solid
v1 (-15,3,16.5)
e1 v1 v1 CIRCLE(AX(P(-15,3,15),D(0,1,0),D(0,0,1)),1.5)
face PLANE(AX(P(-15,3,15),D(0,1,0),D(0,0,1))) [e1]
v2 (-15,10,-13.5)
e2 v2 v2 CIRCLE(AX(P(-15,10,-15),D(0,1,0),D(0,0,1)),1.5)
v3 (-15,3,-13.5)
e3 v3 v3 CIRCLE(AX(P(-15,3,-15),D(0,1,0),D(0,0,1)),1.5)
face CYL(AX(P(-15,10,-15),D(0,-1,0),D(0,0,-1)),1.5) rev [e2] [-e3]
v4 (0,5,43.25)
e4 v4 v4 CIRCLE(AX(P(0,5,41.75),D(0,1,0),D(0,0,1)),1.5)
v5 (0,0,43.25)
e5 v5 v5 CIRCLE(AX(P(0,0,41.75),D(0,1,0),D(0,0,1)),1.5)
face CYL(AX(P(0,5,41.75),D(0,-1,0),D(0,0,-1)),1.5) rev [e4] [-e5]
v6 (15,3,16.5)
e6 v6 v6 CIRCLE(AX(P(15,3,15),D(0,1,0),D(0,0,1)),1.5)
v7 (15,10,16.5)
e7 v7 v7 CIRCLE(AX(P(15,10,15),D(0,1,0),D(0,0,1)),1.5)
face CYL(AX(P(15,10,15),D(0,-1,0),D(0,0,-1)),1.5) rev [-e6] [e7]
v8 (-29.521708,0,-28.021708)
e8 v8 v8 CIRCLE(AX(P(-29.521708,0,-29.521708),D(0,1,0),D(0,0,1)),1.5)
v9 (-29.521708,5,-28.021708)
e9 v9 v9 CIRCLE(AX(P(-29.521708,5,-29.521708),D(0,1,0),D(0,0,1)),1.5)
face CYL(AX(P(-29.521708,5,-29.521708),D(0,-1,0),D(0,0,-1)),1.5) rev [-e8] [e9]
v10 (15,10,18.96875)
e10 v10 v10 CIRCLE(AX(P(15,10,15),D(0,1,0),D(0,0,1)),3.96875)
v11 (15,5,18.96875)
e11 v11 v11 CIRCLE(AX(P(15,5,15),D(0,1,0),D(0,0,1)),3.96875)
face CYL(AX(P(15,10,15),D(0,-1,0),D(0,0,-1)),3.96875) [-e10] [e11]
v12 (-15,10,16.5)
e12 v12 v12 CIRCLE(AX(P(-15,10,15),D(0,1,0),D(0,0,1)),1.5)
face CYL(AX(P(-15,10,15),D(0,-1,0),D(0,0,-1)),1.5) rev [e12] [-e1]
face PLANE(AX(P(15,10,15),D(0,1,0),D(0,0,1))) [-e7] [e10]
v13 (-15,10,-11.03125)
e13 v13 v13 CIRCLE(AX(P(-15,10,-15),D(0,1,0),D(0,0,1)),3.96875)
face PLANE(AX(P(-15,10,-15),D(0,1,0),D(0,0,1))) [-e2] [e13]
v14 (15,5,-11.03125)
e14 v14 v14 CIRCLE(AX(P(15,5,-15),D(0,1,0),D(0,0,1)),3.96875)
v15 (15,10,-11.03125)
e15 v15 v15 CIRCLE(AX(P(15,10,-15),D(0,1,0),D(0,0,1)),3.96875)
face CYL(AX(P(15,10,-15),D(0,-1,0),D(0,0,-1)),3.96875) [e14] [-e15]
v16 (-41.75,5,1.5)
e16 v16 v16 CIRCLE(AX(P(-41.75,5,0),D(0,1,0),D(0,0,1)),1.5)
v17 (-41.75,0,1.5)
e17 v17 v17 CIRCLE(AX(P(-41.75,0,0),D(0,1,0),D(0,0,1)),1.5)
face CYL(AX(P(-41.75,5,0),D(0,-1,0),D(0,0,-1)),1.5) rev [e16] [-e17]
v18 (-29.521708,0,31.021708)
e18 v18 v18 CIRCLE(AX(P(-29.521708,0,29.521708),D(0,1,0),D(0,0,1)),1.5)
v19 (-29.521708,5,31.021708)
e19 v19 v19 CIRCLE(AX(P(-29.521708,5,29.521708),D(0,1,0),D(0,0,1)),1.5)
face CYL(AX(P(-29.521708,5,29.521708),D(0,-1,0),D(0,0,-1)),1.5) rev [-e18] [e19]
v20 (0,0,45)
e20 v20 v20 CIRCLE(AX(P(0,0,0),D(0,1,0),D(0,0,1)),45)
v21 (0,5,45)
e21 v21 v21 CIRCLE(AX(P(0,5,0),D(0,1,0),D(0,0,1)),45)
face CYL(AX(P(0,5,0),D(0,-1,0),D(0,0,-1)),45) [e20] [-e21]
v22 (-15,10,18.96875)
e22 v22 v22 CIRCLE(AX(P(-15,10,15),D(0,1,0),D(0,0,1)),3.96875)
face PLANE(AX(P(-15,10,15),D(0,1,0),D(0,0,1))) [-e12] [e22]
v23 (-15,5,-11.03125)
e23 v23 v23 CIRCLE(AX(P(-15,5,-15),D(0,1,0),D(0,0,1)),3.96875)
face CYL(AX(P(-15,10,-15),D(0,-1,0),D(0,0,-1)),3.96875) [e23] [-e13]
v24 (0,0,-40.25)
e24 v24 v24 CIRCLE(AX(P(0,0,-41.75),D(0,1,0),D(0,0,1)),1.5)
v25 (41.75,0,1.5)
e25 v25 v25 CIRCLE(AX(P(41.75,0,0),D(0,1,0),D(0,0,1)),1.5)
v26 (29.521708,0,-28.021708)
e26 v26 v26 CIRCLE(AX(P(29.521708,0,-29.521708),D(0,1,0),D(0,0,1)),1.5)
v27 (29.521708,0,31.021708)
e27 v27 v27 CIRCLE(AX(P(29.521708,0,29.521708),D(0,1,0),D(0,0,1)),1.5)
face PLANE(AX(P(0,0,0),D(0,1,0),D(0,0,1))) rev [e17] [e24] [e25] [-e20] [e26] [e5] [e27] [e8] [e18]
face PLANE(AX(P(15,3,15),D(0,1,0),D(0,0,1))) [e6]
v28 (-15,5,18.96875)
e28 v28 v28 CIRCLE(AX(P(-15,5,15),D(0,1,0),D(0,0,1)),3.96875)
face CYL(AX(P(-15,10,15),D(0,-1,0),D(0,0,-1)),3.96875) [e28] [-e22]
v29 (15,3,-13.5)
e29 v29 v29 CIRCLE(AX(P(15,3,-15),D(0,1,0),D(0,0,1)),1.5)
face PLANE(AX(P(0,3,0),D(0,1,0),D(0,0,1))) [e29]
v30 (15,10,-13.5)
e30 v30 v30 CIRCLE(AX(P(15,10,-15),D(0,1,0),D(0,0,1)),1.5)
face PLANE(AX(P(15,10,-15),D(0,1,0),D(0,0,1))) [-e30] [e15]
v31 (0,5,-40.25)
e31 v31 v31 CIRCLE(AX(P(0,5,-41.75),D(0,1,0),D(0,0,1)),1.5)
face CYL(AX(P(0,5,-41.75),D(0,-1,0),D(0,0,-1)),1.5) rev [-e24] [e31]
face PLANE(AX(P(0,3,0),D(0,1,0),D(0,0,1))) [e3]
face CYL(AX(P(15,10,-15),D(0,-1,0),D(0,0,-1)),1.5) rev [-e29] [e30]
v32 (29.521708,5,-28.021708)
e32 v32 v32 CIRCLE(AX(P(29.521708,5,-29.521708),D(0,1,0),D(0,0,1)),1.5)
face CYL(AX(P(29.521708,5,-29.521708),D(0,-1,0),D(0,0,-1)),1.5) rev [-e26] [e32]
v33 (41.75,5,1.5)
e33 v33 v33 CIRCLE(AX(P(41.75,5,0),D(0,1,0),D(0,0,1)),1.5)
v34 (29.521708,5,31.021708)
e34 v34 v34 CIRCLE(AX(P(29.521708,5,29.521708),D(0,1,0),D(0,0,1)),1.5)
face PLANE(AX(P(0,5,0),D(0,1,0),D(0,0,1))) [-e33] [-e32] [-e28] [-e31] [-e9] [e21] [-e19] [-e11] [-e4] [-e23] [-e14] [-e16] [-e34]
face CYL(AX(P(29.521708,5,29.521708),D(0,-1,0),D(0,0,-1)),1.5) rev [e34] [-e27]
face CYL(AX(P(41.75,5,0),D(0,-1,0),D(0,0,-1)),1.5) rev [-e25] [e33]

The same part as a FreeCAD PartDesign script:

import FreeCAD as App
import Part
import Sketcher

V = App.Vector
Q = App.Units.Quantity

doc = App.newDocument("Part")
params = doc.addObject("Spreadsheet::Sheet", "Params")
for row, (alias, value) in enumerate([
    ("sketch1_diameter", "90 mm"),
    ("sketch1_diameter2", "3 mm"),
    ("pad1_length", "5 mm"),
    ("pad2_length", "5 mm"),
    ("sketch3_diameter", "3 mm"),
    ("pocket1_length", "7 mm"),
    ("sketch4_height", "5 mm"),
    ("pad3_length", "4 mm"),
    ("sketch6_diameter", "3 mm"),
    ("pad4_length", "5 mm"),
    ("sketch7_diameter", "3 mm"),
    ("pocket3_length", "2 mm"),
], start=1):
    params.set(f"A{row}", alias)
    params.set(f"B{row}", "=" + value)
    params.setAlias(f"B{row}", alias)

body = doc.addObject("PartDesign::Body", "Body")

# Sketch on XZ plane
sketch1 = body.newObject("Sketcher::SketchObject", "Sketch")
sketch1.AttachmentSupport = (doc.getObject("XZ_Plane"), [""])
sketch1.MapMode = "FlatFace"
sketch1.addGeometry(Part.Circle(V(0, 0, 0), V(0, 0, 1), 45), False)
sketch1.addGeometry(Part.Circle(V(-29.5, -29.5, 0), V(0, 0, 1), 1.5), False)
sketch1.addGeometry(Part.Circle(V(0, -41.8, 0), V(0, 0, 1), 1.5), False)
sketch1.addGeometry(Part.Circle(V(-41.8, 0, 0), V(0, 0, 1), 1.5), False)
sketch1.addGeometry(Part.Circle(V(-29.5, 29.5, 0), V(0, 0, 1), 1.5), False)
sketch1.addGeometry(Part.Circle(V(29.5, -29.5, 0), V(0, 0, 1), 1.5), False)
sketch1.addGeometry(Part.Circle(V(41.8, 0, 0), V(0, 0, 1), 1.5), False)
sketch1.addGeometry(Part.Circle(V(0, 41.8, 0), V(0, 0, 1), 1.5), False)
sketch1.addGeometry(Part.Circle(V(29.5, 29.5, 0), V(0, 0, 1), 1.5), False)
sketch1.addConstraint(Sketcher.Constraint("Coincident", 0, 3, -1, 1))
sketch1.addConstraint(Sketcher.Constraint("Equal", 1, 2))
sketch1.addConstraint(Sketcher.Constraint("Equal", 2, 3))
sketch1.addConstraint(Sketcher.Constraint("Equal", 3, 4))
sketch1.addConstraint(Sketcher.Constraint("Equal", 4, 5))
sketch1.addConstraint(Sketcher.Constraint("Equal", 5, 6))
sketch1.addConstraint(Sketcher.Constraint("Equal", 6, 7))
sketch1.addConstraint(Sketcher.Constraint("Equal", 7, 8))
sketch1.addConstraint(Sketcher.Constraint("Symmetric", 4, 3, 5, 3, -1, 1))
sketch1.addConstraint(Sketcher.Constraint("Symmetric", 3, 3, 6, 3, -1, 1))
sketch1.addConstraint(Sketcher.Constraint("Symmetric", 2, 3, 7, 3, -1, 1))
sketch1.addConstraint(Sketcher.Constraint("Symmetric", 1, 3, 8, 3, -1, 1))
sketch1.addConstraint(Sketcher.Constraint("Symmetric", 1, 3, 5, 3, -2))
sketch1.addConstraint(Sketcher.Constraint("PointOnObject", 2, 3, -2))
sketch1.addConstraint(Sketcher.Constraint("PointOnObject", 3, 3, -1))
sketch1.addConstraint(Sketcher.Constraint("Diameter", 0, Q("90 mm")))
sketch1.addConstraint(Sketcher.Constraint("Diameter", 1, Q("3 mm")))
sketch1.addConstraint(Sketcher.Constraint("DistanceY", 2, 3, -1, 1, Q("41.75 mm")))
sketch1.addConstraint(Sketcher.Constraint("DistanceX", 3, 3, -1, 1, Q("41.75 mm")))
sketch1.addConstraint(Sketcher.Constraint("DistanceX", 1, 3, -1, 1, Q("29.521708 mm")))
sketch1.addConstraint(Sketcher.Constraint("DistanceY", 1, 3, -1, 1, Q("29.521708 mm")))
sketch1.setExpression("Constraints[15]", "Params.sketch1_diameter")
sketch1.setExpression("Constraints[16]", "Params.sketch1_diameter2")
pad1 = body.newObject("PartDesign::Pad", "Pad")
pad1.Profile = sketch1
pad1.setExpression("Length", "Params.pad1_length")
pad1.Reversed = True

# Sketch on XZ plane
sketch2 = body.newObject("Sketcher::SketchObject", "Sketch001")
sketch2.AttachmentSupport = (doc.getObject("XZ_Plane"), [""])
sketch2.MapMode = "FlatFace"
sketch2.AttachmentOffset = App.Placement(V(0, 0, -5), App.Rotation())
sketch2.addGeometry(Part.Circle(V(-10, -10, 0), V(0, 0, 1), 4), False)
sketch2.addGeometry(Part.Circle(V(10, -10, 0), V(0, 0, 1), 4), False)
sketch2.addGeometry(Part.Circle(V(10, 10, 0), V(0, 0, 1), 4), False)
sketch2.addGeometry(Part.Circle(V(-10, 10, 0), V(0, 0, 1), 4), False)
sketch2.addConstraint(Sketcher.Constraint("Equal", 0, 1))
sketch2.addConstraint(Sketcher.Constraint("Equal", 1, 2))
sketch2.addConstraint(Sketcher.Constraint("Equal", 2, 3))
sketch2.addConstraint(Sketcher.Constraint("Symmetric", 0, 3, 2, 3, -1, 1))
sketch2.addConstraint(Sketcher.Constraint("Symmetric", 1, 3, 3, 3, -1, 1))
sketch2.addConstraint(Sketcher.Constraint("Symmetric", 0, 3, 1, 3, -2))
sketch2.addConstraint(Sketcher.Constraint("DistanceX", 0, 3, -1, 1, Q("10 mm")))
sketch2.addConstraint(Sketcher.Constraint("DistanceY", 0, 3, -1, 1, Q("10 mm")))
sketch2.addConstraint(Sketcher.Constraint("Diameter", 0, Q("7.9375 mm")))
pad2 = body.newObject("PartDesign::Pad", "Pad001")
pad2.Profile = sketch2
pad2.setExpression("Length", "Params.pad2_length")
pad2.Reversed = True

# Sketch on XZ plane
sketch3 = body.newObject("Sketcher::SketchObject", "Sketch002")
sketch3.AttachmentSupport = (doc.getObject("XZ_Plane"), [""])
sketch3.MapMode = "FlatFace"
sketch3.AttachmentOffset = App.Placement(V(0, 0, -10), App.Rotation())
sketch3.addGeometry(Part.Circle(V(-10, -10, 0), V(0, 0, 1), 1.5), False)
sketch3.addGeometry(Part.Circle(V(10, -10, 0), V(0, 0, 1), 1.5), False)
sketch3.addGeometry(Part.Circle(V(-10, 10, 0), V(0, 0, 1), 1.5), False)
sketch3.addGeometry(Part.Circle(V(10, 10, 0), V(0, 0, 1), 1.5), False)
sketch3.addConstraint(Sketcher.Constraint("Equal", 0, 1))
sketch3.addConstraint(Sketcher.Constraint("Equal", 1, 2))
sketch3.addConstraint(Sketcher.Constraint("Equal", 2, 3))
sketch3.addConstraint(Sketcher.Constraint("Symmetric", 1, 3, 2, 3, -1, 1))
sketch3.addConstraint(Sketcher.Constraint("Symmetric", 0, 3, 3, 3, -1, 1))
sketch3.addConstraint(Sketcher.Constraint("Symmetric", 0, 3, 1, 3, -2))
sketch3.addConstraint(Sketcher.Constraint("Diameter", 0, Q("3 mm")))
sketch3.addConstraint(Sketcher.Constraint("DistanceX", 0, 3, -1, 1, Q("10 mm")))
sketch3.addConstraint(Sketcher.Constraint("DistanceY", 0, 3, -1, 1, Q("10 mm")))
sketch3.setExpression("Constraints[6]", "Params.sketch3_diameter")
pocket1 = body.newObject("PartDesign::Pocket", "Pocket")
pocket1.Profile = sketch3
pocket1.setExpression("Length", "Params.pocket1_length")
pocket1.Reversed = True

# Sketch on XY plane
sketch4 = body.newObject("Sketcher::SketchObject", "Sketch003")
sketch4.AttachmentSupport = (doc.getObject("XY_Plane"), [""])
sketch4.MapMode = "FlatFace"
sketch4.addGeometry(Part.LineSegment(V(-14, 10, 0), V(-14, 5, 0)), False)
sketch4.addGeometry(Part.LineSegment(V(-14, 5, 0), V(14, 5, 0)), False)
sketch4.addGeometry(Part.LineSegment(V(14, 5, 0), V(14, 10, 0)), False)
sketch4.addGeometry(Part.LineSegment(V(14, 10, 0), V(-14, 10, 0)), False)
sketch4.addConstraint(Sketcher.Constraint("Coincident", 0, 2, 1, 1))
sketch4.addConstraint(Sketcher.Constraint("Coincident", 1, 2, 2, 1))
sketch4.addConstraint(Sketcher.Constraint("Coincident", 2, 2, 3, 1))
sketch4.addConstraint(Sketcher.Constraint("Coincident", 3, 2, 0, 1))
sketch4.addConstraint(Sketcher.Constraint("Vertical", 0))
sketch4.addConstraint(Sketcher.Constraint("Horizontal", 1))
sketch4.addConstraint(Sketcher.Constraint("Vertical", 2))
sketch4.addConstraint(Sketcher.Constraint("Horizontal", 3))
sketch4.addConstraint(Sketcher.Constraint("DistanceY", 0, 2, 0, 1, Q("5 mm")))
sketch4.addConstraint(Sketcher.Constraint("DistanceY", -1, 1, 0, 2, Q("5 mm")))
sketch4.addConstraint(Sketcher.Constraint("DistanceX", 1, 1, 1, 2, Q("27.9375 mm")))
sketch4.addConstraint(Sketcher.Constraint("DistanceX", 0, 2, -1, 1, Q("13.96875 mm")))
sketch4.setExpression("Constraints[8]", "Params.sketch4_height")
pocket2 = body.newObject("PartDesign::Pocket", "Pocket001")
pocket2.Profile = sketch4
pocket2.Type = "ThroughAll"
pocket2.Midplane = True

# Sketch on XZ plane
sketch5 = body.newObject("Sketcher::SketchObject", "Sketch004")
sketch5.AttachmentSupport = (doc.getObject("XZ_Plane"), [""])
sketch5.MapMode = "FlatFace"
sketch5.AttachmentOffset = App.Placement(V(0, 0, -5), App.Rotation())
sketch5.addGeometry(Part.LineSegment(V(-19, -18, 0), V(-19, 19, 0)), False)
sketch5.addGeometry(Part.LineSegment(V(-19, 19, 0), V(20, 19, 0)), False)
sketch5.addGeometry(Part.LineSegment(V(20, 19, 0), V(20, -18, 0)), False)
sketch5.addGeometry(Part.LineSegment(V(20, -18, 0), V(-19, -18, 0)), False)
sketch5.addConstraint(Sketcher.Constraint("Coincident", 0, 2, 1, 1))
sketch5.addConstraint(Sketcher.Constraint("Coincident", 1, 2, 2, 1))
sketch5.addConstraint(Sketcher.Constraint("Coincident", 2, 2, 3, 1))
sketch5.addConstraint(Sketcher.Constraint("Coincident", 3, 2, 0, 1))
sketch5.addConstraint(Sketcher.Constraint("Vertical", 0))
sketch5.addConstraint(Sketcher.Constraint("Horizontal", 1))
sketch5.addConstraint(Sketcher.Constraint("Vertical", 2))
sketch5.addConstraint(Sketcher.Constraint("Horizontal", 3))
sketch5.addConstraint(Sketcher.Constraint("DistanceX", 1, 1, 1, 2, Q("38.057412 mm")))
sketch5.addConstraint(Sketcher.Constraint("DistanceY", 0, 1, 0, 2, Q("36.402742 mm")))
sketch5.addConstraint(Sketcher.Constraint("DistanceY", -1, 1, 0, 2, Q("18.615039 mm")))
sketch5.addConstraint(Sketcher.Constraint("DistanceX", -1, 1, 1, 2, Q("19.501469 mm")))
pad3 = body.newObject("PartDesign::Pad", "Pad002")
pad3.Profile = sketch5
pad3.setExpression("Length", "Params.pad3_length")

# Sketch on XZ plane
sketch6 = body.newObject("Sketcher::SketchObject", "Sketch005")
sketch6.AttachmentSupport = (doc.getObject("XZ_Plane"), [""])
sketch6.MapMode = "FlatFace"
sketch6.AttachmentOffset = App.Placement(V(0, 0, -5), App.Rotation())
sketch6.addGeometry(Part.Circle(V(-15, -15, 0), V(0, 0, 1), 4), False)
sketch6.addGeometry(Part.Circle(V(-15, -15, 0), V(0, 0, 1), 1.5), False)
sketch6.addGeometry(Part.Circle(V(15, -15, 0), V(0, 0, 1), 4), False)
sketch6.addGeometry(Part.Circle(V(15, -15, 0), V(0, 0, 1), 1.5), False)
sketch6.addGeometry(Part.Circle(V(15, 15, 0), V(0, 0, 1), 4), False)
sketch6.addGeometry(Part.Circle(V(15, 15, 0), V(0, 0, 1), 1.5), False)
sketch6.addGeometry(Part.Circle(V(-15, 15, 0), V(0, 0, 1), 4), False)
sketch6.addGeometry(Part.Circle(V(-15, 15, 0), V(0, 0, 1), 1.5), False)
sketch6.addConstraint(Sketcher.Constraint("Coincident", 1, 3, 0, 3))
sketch6.addConstraint(Sketcher.Constraint("Coincident", 3, 3, 2, 3))
sketch6.addConstraint(Sketcher.Constraint("Coincident", 5, 3, 4, 3))
sketch6.addConstraint(Sketcher.Constraint("Coincident", 7, 3, 6, 3))
sketch6.addConstraint(Sketcher.Constraint("Equal", 0, 2))
sketch6.addConstraint(Sketcher.Constraint("Equal", 1, 3))
sketch6.addConstraint(Sketcher.Constraint("Equal", 2, 4))
sketch6.addConstraint(Sketcher.Constraint("Equal", 3, 5))
sketch6.addConstraint(Sketcher.Constraint("Equal", 4, 6))
sketch6.addConstraint(Sketcher.Constraint("Equal", 5, 7))
sketch6.addConstraint(Sketcher.Constraint("Symmetric", 0, 3, 4, 3, -1, 1))
sketch6.addConstraint(Sketcher.Constraint("Symmetric", 2, 3, 6, 3, -1, 1))
sketch6.addConstraint(Sketcher.Constraint("Symmetric", 0, 3, 2, 3, -2))
sketch6.addConstraint(Sketcher.Constraint("Diameter", 1, Q("3 mm")))
sketch6.addConstraint(Sketcher.Constraint("DistanceX", 0, 3, -1, 1, Q("15 mm")))
sketch6.addConstraint(Sketcher.Constraint("DistanceY", 0, 3, -1, 1, Q("15 mm")))
sketch6.addConstraint(Sketcher.Constraint("Diameter", 0, Q("7.9375 mm")))
sketch6.setExpression("Constraints[13]", "Params.sketch6_diameter")
pad4 = body.newObject("PartDesign::Pad", "Pad003")
pad4.Profile = sketch6
pad4.setExpression("Length", "Params.pad4_length")
pad4.Reversed = True

# Sketch on XZ plane
sketch7 = body.newObject("Sketcher::SketchObject", "Sketch006")
sketch7.AttachmentSupport = (doc.getObject("XZ_Plane"), [""])
sketch7.MapMode = "FlatFace"
sketch7.AttachmentOffset = App.Placement(V(0, 0, -3), App.Rotation())
sketch7.addGeometry(Part.Circle(V(-15, -15, 0), V(0, 0, 1), 1.5), False)
sketch7.addGeometry(Part.Circle(V(15, -15, 0), V(0, 0, 1), 1.5), False)
sketch7.addGeometry(Part.Circle(V(15, 15, 0), V(0, 0, 1), 1.5), False)
sketch7.addGeometry(Part.Circle(V(-15, 15, 0), V(0, 0, 1), 1.5), False)
sketch7.addConstraint(Sketcher.Constraint("Equal", 0, 1))
sketch7.addConstraint(Sketcher.Constraint("Equal", 1, 2))
sketch7.addConstraint(Sketcher.Constraint("Equal", 2, 3))
sketch7.addConstraint(Sketcher.Constraint("Symmetric", 0, 3, 2, 3, -1, 1))
sketch7.addConstraint(Sketcher.Constraint("Symmetric", 1, 3, 3, 3, -1, 1))
sketch7.addConstraint(Sketcher.Constraint("Symmetric", 0, 3, 1, 3, -2))
sketch7.addConstraint(Sketcher.Constraint("Diameter", 0, Q("3 mm")))
sketch7.addConstraint(Sketcher.Constraint("DistanceX", 0, 3, -1, 1, Q("15 mm")))
sketch7.addConstraint(Sketcher.Constraint("DistanceY", 0, 3, -1, 1, Q("15 mm")))
sketch7.setExpression("Constraints[6]", "Params.sketch7_diameter")
pocket3 = body.newObject("PartDesign::Pocket", "Pocket002")
pocket3.Profile = sketch7
pocket3.setExpression("Length", "Params.pocket3_length")

doc.recompute()
